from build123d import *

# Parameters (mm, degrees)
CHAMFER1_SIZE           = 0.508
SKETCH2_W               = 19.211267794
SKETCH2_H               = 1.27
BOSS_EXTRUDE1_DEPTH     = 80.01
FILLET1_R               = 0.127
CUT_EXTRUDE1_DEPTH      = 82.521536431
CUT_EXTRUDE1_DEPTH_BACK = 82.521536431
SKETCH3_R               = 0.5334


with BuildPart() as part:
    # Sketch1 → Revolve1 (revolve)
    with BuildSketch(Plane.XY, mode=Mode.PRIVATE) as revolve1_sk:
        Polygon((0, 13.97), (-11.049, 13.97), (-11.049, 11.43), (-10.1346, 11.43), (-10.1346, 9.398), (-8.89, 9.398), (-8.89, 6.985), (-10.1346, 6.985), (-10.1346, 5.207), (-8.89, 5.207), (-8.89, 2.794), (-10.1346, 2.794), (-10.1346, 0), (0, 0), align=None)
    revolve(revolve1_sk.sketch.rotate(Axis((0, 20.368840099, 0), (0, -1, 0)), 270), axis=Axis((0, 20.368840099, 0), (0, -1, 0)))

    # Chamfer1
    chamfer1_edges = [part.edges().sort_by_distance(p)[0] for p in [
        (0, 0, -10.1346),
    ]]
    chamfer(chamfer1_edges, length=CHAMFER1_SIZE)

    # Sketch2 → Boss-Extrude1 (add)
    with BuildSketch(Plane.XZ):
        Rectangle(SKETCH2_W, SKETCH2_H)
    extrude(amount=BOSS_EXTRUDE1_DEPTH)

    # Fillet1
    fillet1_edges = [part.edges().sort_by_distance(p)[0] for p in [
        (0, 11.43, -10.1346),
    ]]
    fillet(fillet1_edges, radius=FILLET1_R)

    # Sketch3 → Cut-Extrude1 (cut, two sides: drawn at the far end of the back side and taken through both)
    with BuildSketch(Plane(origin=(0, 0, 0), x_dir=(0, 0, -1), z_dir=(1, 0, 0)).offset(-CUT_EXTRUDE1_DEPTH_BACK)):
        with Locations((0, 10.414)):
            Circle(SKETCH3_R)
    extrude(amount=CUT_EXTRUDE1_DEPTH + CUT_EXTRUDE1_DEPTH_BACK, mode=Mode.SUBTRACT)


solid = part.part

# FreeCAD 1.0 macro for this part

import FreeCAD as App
import Part
import Sketcher

V = App.Vector
Q = App.Units.Quantity


def edges_at(feature, points):
    """Names of the edges that pass closest to the given points."""
    edges = feature.Shape.Edges
    near = lambda p: min(range(len(edges)), key=lambda i: edges[i].distToShape(Part.Vertex(*p))[0])
    return sorted({f"Edge{near(p) + 1}" for p in points})


def add_polygon(sketch, points):
    """Adds a closed chain of lines whose ends are joined by coincident constraints."""
    first, n = sketch.GeometryCount, len(points)
    for a, b in zip(points, points[1:] + points[:1]):
        sketch.addGeometry(Part.LineSegment(App.Vector(*a, 0), App.Vector(*b, 0)), False)
    for i in range(n):
        sketch.addConstraint(Sketcher.Constraint("Coincident", first + i, 2, first + (i + 1) % n, 1))

doc = App.newDocument("Part")
params = doc.addObject("Spreadsheet::Sheet", "Params")
for row, (alias, value) in enumerate([
    ("sketch1_height", "0.1 in"),
    ("sketch1_height2", "0.08 in"),
    ("sketch1_height3", "0.07 in"),
    ("sketch1_height4", "0.11 in"),
    ("sketch1_height5", "0.55 in"),
    ("revolution_angle", "360 deg"),
    ("chamfer_size", "0.02 in"),
    ("sketch2_height", "0.05 in"),
    ("pad1_length", "3.15 in"),
    ("fillet_radius", "0.005 in"),
    ("sketch3_diameter", "0.042 in"),
], start=1):
    params.set(f"A{row}", alias)
    params.set(f"B{row}", "=" + value)
    params.setAlias(f"B{row}", alias)

body = doc.addObject("PartDesign::Body", "Body")

# Sketch on XY plane
sketch1 = body.newObject("Sketcher::SketchObject", "Sketch")
sketch1.AttachmentSupport = (doc.getObject("XY_Plane"), [""])
sketch1.MapMode = "FlatFace"
add_polygon(sketch1, [(0, 14), (-11, 14), (-11, 11.4), (-10.1, 11.4), (-10.1, 9.4), (-8.9, 9.4), (-8.9, 7), (-10.1, 7), (-10.1, 5.2), (-8.9, 5.2), (-8.9, 2.8), (-10.1, 2.8), (-10.1, 0), (0, 0)])  # lines 0-13
sketch1.addConstraint([
    Sketcher.Constraint("Horizontal", 0),
    Sketcher.Constraint("Vertical", 1),
    Sketcher.Constraint("Horizontal", 2),
    Sketcher.Constraint("Vertical", 3),
    Sketcher.Constraint("Horizontal", 4),
    Sketcher.Constraint("Vertical", 5),
    Sketcher.Constraint("Horizontal", 6),
    Sketcher.Constraint("Vertical", 7),
    Sketcher.Constraint("Horizontal", 8),
    Sketcher.Constraint("Vertical", 9),
    Sketcher.Constraint("Horizontal", 10),
    Sketcher.Constraint("Vertical", 11),
    Sketcher.Constraint("Horizontal", 12),
    Sketcher.Constraint("Vertical", 13),
    Sketcher.Constraint("Coincident", 12, 2, -1, 1),
    Sketcher.Constraint("Vertical", 3, 2, 6, 2),
    Sketcher.Constraint("Vertical", 5, 2, 8, 2),
    Sketcher.Constraint("Vertical", 7, 2, 10, 2),
    Sketcher.Constraint("Equal", 5, 9),
    Sketcher.Constraint("DistanceY", 1, 2, 1, 1, Q("0.1 in")),
    Sketcher.Constraint("DistanceY", 3, 2, 3, 1, Q("0.08 in")),
    Sketcher.Constraint("DistanceY", 7, 2, 7, 1, Q("0.07 in")),
    Sketcher.Constraint("DistanceY", 11, 2, 11, 1, Q("0.11 in")),
    Sketcher.Constraint("DistanceY", 13, 1, 13, 2, Q("0.55 in")),
    Sketcher.Constraint("DistanceX", 0, 2, 0, 1, Q("0.435 in")),
    Sketcher.Constraint("DistanceX", 2, 1, 2, 2, Q("0.036 in")),
    Sketcher.Constraint("DistanceX", 4, 1, 4, 2, Q("0.049 in")),
])
sketch1.setExpression("Constraints[33]", "Params.sketch1_height")
sketch1.setExpression("Constraints[34]", "Params.sketch1_height2")
sketch1.setExpression("Constraints[35]", "Params.sketch1_height3")
sketch1.setExpression("Constraints[36]", "Params.sketch1_height4")
sketch1.setExpression("Constraints[37]", "Params.sketch1_height5")
revolution = body.newObject("PartDesign::Revolution", "Revolution")
revolution.Profile = sketch1
revolution.ReferenceAxis = (sketch1, ["V_Axis"])
revolution.setExpression("Angle", "Params.revolution_angle")
doc.recompute()

chamfer = body.newObject("PartDesign::Chamfer", "Chamfer")
chamfer.Base = (revolution, edges_at(revolution, [(0, 0, -10.135)]))
chamfer.setExpression("Size", "Params.chamfer_size")

# Sketch on XZ plane
sketch2 = body.newObject("Sketcher::SketchObject", "Sketch001")
sketch2.AttachmentSupport = (doc.getObject("XZ_Plane"), [""])
sketch2.MapMode = "FlatFace"
add_polygon(sketch2, [(-9.6, 0.6), (-9.6, -0.6), (9.6, -0.6), (9.6, 0.6)])  # lines 0-3
sketch2.addConstraint([
    Sketcher.Constraint("Vertical", 0),
    Sketcher.Constraint("Horizontal", 1),
    Sketcher.Constraint("Vertical", 2),
    Sketcher.Constraint("Horizontal", 3),
    Sketcher.Constraint("Symmetric", 0, 2, 2, 2, -1, 1),
    Sketcher.Constraint("DistanceY", 0, 2, 0, 1, Q("0.05 in")),
    Sketcher.Constraint("DistanceX", 1, 1, 1, 2, 19.211268),
])
sketch2.setExpression("Constraints[9]", "Params.sketch2_height")
pad1 = body.newObject("PartDesign::Pad", "Pad")
pad1.Profile = sketch2
pad1.setExpression("Length", "Params.pad1_length")
doc.recompute()

fillet = body.newObject("PartDesign::Fillet", "Fillet")
fillet.Base = (pad1, edges_at(pad1, [(0, 11.43, -10.135)]))
fillet.setExpression("Radius", "Params.fillet_radius")

# Sketch on YZ plane
sketch3 = body.newObject("Sketcher::SketchObject", "Sketch002")
sketch3.AttachmentSupport = (doc.getObject("YZ_Plane"), [""])
sketch3.MapMode = "FlatFace"
sketch3.addGeometry(Part.Circle(V(10.4, 0, 0), V(0, 0, 1), 0.5), False)
sketch3.addConstraint([
    Sketcher.Constraint("PointOnObject", 0, 3, -1),
    Sketcher.Constraint("Diameter", 0, Q("0.042 in")),
    Sketcher.Constraint("DistanceX", -1, 1, 0, 3, Q("0.41 in")),
])
sketch3.setExpression("Constraints[1]", "Params.sketch3_diameter")
pocket1 = body.newObject("PartDesign::Pocket", "Pocket")
pocket1.Profile = sketch3
pocket1.Type = "ThroughAll"
pocket1.Midplane = True

doc.recompute()
